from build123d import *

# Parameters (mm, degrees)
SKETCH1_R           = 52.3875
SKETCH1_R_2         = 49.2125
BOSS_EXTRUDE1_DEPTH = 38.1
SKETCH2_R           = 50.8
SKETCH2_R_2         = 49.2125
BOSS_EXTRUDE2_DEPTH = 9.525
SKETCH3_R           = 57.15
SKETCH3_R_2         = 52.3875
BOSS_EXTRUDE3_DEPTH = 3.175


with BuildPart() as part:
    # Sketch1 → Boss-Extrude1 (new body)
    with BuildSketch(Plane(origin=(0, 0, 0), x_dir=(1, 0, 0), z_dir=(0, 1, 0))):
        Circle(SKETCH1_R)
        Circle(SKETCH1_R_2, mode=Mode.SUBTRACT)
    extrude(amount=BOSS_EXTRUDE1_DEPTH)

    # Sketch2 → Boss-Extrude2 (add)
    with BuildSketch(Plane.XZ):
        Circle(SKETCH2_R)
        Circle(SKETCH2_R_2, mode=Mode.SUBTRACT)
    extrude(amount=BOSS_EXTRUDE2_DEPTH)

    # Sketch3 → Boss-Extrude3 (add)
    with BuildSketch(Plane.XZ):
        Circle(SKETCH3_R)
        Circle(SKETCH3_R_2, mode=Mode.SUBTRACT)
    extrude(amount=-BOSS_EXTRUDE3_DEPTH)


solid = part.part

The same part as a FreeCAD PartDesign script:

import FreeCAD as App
import Part
import Sketcher

V = App.Vector
Q = App.Units.Quantity

doc = App.newDocument("Part")
body = doc.addObject("PartDesign::Body", "Body")

# Sketch on XZ plane
sketch1 = body.newObject("Sketcher::SketchObject", "Sketch")
sketch1.AttachmentSupport = (doc.getObject("XZ_Plane"), [""])
sketch1.MapMode = "FlatFace"
sketch1.addGeometry(Part.Circle(V(0, 0, 0), V(0, 0, 1), 52.3875), False)
sketch1.addGeometry(Part.Circle(V(0, 0, 0), V(0, 0, 1), 49.2125), False)
sketch1.addConstraint(Sketcher.Constraint("Coincident", 0, 3, -1, 1))
sketch1.addConstraint(Sketcher.Constraint("Coincident", 1, 3, -1, 1))
sketch1.addConstraint(Sketcher.Constraint("Diameter", 0, Q("4.125 in")))
sketch1.addConstraint(Sketcher.Constraint("Diameter", 1, Q("3.875 in")))
pad1 = body.newObject("PartDesign::Pad", "Pad")
pad1.Profile = sketch1
pad1.Length = Q("1.5 in")
pad1.Reversed = True

# Sketch on XZ plane
sketch2 = body.newObject("Sketcher::SketchObject", "Sketch001")
sketch2.AttachmentSupport = (doc.getObject("XZ_Plane"), [""])
sketch2.MapMode = "FlatFace"
sketch2.addGeometry(Part.Circle(V(0, 0, 0), V(0, 0, 1), 50.8), False)
sketch2.addGeometry(Part.Circle(V(0, 0, 0), V(0, 0, 1), 49.2125), False)
sketch2.addConstraint(Sketcher.Constraint("Coincident", 0, 3, -1, 1))
sketch2.addConstraint(Sketcher.Constraint("Coincident", 1, 3, -1, 1))
sketch2.addConstraint(Sketcher.Constraint("Diameter", 0, Q("4 in")))
sketch2.addConstraint(Sketcher.Constraint("Diameter", 1, Q("3.875 in")))
pad2 = body.newObject("PartDesign::Pad", "Pad001")
pad2.Profile = sketch2
pad2.Length = Q("0.375 in")

# Sketch on XZ plane
sketch3 = body.newObject("Sketcher::SketchObject", "Sketch002")
sketch3.AttachmentSupport = (doc.getObject("XZ_Plane"), [""])
sketch3.MapMode = "FlatFace"
sketch3.addGeometry(Part.Circle(V(0, 0, 0), V(0, 0, 1), 57.15), False)
sketch3.addGeometry(Part.Circle(V(0, 0, 0), V(0, 0, 1), 52.3875), False)
sketch3.addConstraint(Sketcher.Constraint("Coincident", 0, 3, -1, 1))
sketch3.addConstraint(Sketcher.Constraint("Coincident", 1, 3, -1, 1))
sketch3.addConstraint(Sketcher.Constraint("Diameter", 0, Q("4.5 in")))
sketch3.addConstraint(Sketcher.Constraint("Diameter", 1, Q("4.125 in")))
pad3 = body.newObject("PartDesign::Pad", "Pad002")
pad3.Profile = sketch3
pad3.Length = Q("0.125 in")
pad3.Reversed = True

doc.recompute()
